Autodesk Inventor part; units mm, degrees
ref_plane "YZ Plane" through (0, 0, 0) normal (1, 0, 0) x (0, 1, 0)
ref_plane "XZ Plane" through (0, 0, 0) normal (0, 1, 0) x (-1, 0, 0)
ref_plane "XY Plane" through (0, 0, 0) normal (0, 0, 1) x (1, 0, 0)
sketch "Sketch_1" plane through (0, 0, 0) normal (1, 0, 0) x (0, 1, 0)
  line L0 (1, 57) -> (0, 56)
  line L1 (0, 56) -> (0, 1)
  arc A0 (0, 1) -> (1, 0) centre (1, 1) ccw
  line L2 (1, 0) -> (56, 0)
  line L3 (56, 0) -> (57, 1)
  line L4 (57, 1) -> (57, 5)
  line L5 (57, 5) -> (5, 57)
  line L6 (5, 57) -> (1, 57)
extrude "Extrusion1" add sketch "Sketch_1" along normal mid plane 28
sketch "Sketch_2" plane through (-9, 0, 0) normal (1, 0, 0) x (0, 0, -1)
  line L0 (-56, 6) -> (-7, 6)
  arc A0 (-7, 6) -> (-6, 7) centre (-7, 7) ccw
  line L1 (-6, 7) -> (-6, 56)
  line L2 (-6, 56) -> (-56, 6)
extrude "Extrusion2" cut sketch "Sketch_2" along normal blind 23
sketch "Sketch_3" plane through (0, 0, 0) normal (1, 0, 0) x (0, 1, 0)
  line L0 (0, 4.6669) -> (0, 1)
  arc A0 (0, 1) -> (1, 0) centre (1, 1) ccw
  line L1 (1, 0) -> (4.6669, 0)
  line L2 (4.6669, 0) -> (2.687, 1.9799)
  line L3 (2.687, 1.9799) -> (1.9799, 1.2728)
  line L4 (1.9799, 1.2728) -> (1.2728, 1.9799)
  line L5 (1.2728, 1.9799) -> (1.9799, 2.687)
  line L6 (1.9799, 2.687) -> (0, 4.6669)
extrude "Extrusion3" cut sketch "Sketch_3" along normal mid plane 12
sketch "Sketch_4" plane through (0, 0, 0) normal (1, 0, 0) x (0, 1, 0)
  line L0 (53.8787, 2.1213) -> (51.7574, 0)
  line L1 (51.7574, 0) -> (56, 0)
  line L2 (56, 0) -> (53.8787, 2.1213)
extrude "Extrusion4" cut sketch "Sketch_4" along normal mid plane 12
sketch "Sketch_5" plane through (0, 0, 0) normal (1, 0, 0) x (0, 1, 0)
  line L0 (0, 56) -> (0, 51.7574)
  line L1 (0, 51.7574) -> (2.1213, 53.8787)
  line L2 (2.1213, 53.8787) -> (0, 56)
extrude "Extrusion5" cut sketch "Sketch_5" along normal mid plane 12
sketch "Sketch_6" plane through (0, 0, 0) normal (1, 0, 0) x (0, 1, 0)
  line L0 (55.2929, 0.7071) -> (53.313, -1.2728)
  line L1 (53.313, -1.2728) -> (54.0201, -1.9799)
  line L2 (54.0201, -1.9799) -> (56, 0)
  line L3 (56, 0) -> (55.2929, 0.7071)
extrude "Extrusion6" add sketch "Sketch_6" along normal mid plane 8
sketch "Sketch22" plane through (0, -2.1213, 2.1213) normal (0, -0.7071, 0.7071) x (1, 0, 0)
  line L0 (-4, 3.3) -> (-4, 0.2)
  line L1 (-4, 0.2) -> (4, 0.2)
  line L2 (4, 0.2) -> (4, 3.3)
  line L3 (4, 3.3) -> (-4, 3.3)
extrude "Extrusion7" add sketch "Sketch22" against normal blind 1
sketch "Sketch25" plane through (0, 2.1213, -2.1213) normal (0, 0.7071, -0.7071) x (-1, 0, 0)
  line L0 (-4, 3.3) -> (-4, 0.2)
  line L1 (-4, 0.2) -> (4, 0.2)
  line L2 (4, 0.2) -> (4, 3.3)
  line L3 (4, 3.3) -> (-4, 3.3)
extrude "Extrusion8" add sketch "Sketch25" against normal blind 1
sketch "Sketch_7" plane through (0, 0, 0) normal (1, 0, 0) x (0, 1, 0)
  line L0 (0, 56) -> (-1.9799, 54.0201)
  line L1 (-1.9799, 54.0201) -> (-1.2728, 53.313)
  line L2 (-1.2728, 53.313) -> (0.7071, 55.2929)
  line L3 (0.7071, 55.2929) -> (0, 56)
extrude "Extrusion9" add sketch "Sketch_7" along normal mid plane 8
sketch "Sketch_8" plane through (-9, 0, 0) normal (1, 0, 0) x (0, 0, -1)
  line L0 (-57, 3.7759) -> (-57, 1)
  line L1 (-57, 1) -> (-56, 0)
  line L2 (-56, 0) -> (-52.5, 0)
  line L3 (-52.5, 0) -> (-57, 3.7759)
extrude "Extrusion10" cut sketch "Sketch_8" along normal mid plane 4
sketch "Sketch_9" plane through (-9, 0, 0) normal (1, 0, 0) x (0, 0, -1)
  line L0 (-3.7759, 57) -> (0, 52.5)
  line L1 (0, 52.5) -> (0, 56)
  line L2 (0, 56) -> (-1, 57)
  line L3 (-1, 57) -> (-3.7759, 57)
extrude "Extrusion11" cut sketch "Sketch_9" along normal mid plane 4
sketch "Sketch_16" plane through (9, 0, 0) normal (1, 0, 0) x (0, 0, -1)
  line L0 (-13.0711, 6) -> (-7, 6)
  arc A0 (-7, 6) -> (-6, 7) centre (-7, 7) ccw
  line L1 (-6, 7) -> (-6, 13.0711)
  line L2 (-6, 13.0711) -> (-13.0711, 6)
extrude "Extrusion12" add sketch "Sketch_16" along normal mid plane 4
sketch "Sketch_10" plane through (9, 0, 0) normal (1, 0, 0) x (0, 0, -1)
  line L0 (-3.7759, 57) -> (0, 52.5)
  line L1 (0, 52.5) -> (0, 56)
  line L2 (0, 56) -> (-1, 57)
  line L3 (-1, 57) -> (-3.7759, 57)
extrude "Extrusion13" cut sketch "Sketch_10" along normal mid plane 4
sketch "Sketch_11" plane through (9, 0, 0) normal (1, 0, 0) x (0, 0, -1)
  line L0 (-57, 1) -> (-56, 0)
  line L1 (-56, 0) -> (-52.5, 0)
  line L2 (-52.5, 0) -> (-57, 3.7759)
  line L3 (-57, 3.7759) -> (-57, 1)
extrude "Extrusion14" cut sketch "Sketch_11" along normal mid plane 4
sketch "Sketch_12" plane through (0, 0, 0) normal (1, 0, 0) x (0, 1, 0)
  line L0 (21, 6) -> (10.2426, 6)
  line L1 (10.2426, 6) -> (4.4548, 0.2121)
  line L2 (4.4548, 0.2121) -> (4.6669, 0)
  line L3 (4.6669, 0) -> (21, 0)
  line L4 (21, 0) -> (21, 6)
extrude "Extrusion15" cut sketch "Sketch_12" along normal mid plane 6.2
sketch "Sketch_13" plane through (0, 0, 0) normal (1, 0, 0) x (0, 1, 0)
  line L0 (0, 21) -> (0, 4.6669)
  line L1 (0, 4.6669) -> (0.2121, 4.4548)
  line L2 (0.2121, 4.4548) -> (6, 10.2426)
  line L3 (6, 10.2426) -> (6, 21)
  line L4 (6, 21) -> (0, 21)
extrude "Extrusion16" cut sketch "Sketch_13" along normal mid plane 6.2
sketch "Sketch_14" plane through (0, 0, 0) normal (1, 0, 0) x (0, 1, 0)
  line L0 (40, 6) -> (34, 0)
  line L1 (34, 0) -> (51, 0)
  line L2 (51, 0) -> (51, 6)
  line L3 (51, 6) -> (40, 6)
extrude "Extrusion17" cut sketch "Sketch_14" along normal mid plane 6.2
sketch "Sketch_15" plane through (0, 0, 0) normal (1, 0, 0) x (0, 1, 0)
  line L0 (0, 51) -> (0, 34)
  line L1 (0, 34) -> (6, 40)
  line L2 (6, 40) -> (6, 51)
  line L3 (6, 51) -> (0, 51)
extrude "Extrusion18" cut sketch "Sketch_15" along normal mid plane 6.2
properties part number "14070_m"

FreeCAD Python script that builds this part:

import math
import FreeCAD as App
import Part
import Sketcher

V = App.Vector
Q = App.Units.Quantity

doc = App.newDocument("Part")
body = doc.addObject("PartDesign::Body", "Body")

# Sketch on YZ plane
sketch1 = doc.addObject("Sketcher::SketchObject", "Sketch")
body.addObject(sketch1)
sketch1.AttachmentSupport = (doc.YZ_Plane, [""])
sketch1.MapMode = "FlatFace"
sketch1.addGeometry([
    Part.LineSegment(V(5, 57, 0), V(1, 57, 0)),  # 0
    Part.LineSegment(V(1, 57, 0), V(0, 56, 0)),  # 1
    Part.LineSegment(V(0, 56, 0), V(0, 1, 0)),  # 2
    Part.ArcOfCircle(Part.Circle(V(1, 1, 0), V(0, 0, 1), 1), math.radians(180), math.radians(270)),  # 3
    Part.LineSegment(V(1, 0, 0), V(56, 0, 0)),  # 4
    Part.LineSegment(V(56, 0, 0), V(57, 1, 0)),  # 5
    Part.LineSegment(V(57, 1, 0), V(57, 5, 0)),  # 6
    Part.LineSegment(V(57, 5, 0), V(5, 57, 0)),  # 7
], False)
sketch1.addConstraint([
    Sketcher.Constraint("Coincident", 0, 2, 1, 1),
    Sketcher.Constraint("Coincident", 1, 2, 2, 1),
    Sketcher.Constraint("Tangent", 2, 2, 3, 1),
    Sketcher.Constraint("Tangent", 3, 2, 4, 1),
    Sketcher.Constraint("Coincident", 4, 2, 5, 1),
    Sketcher.Constraint("Coincident", 5, 2, 6, 1),
    Sketcher.Constraint("Coincident", 6, 2, 7, 1),
    Sketcher.Constraint("Coincident", 7, 2, 0, 1),
    Sketcher.Constraint("Horizontal", 0),
    Sketcher.Constraint("Vertical", 2),
    Sketcher.Constraint("Horizontal", 4),
    Sketcher.Constraint("Vertical", 6),
    Sketcher.Constraint("PointOnObject", 1, 2, -2),
    Sketcher.Constraint("PointOnObject", 3, 2, -1),
    Sketcher.Constraint("Parallel", 1, 5),
    Sketcher.Constraint("Perpendicular", 5, 7),
    Sketcher.Constraint("Horizontal", 2, 2, 5, 2),
    Sketcher.Constraint("Vertical", 3, 3, 0, 2),
    Sketcher.Constraint("Equal", 4, 2),
    Sketcher.Constraint("Equal", 0, 6),
    Sketcher.Constraint("Radius", 3, Q("1 mm")),
    Sketcher.Constraint("DistanceX", 0, 2, 0, 1, Q("4 mm")),
    Sketcher.Constraint("DistanceX", 4, 1, 4, 2, Q("55 mm")),
])
pad1 = doc.addObject("PartDesign::Pad", "Pad")
body.addObject(pad1)
pad1.Profile = sketch1
pad1.Length = 28
pad1.Midplane = True

# Sketch on YZ plane
sketch2 = doc.addObject("Sketcher::SketchObject", "Sketch001")
body.addObject(sketch2)
sketch2.AttachmentSupport = (doc.YZ_Plane, [""])
sketch2.MapMode = "FlatFace"
sketch2.AttachmentOffset = App.Placement(V(0, 0, -9), App.Rotation())
sketch2.addGeometry([
    Part.LineSegment(V(56, 6, 0), V(6, 56, 0)),
    Part.LineSegment(V(6, 56, 0), V(6, 7, 0)),
    Part.ArcOfCircle(Part.Circle(V(7, 7, 0), V(0, 0, 1), 1), math.radians(180), math.radians(270)),
    Part.LineSegment(V(7, 6, 0), V(56, 6, 0)),
], False)
sketch2.addConstraint([
    Sketcher.Constraint("Coincident", 0, 2, 1, 1),
    Sketcher.Constraint("Tangent", 1, 2, 2, 1),
    Sketcher.Constraint("Tangent", 2, 2, 3, 1),
    Sketcher.Constraint("Coincident", 3, 2, 0, 1),
    Sketcher.Constraint("Vertical", 1),
    Sketcher.Constraint("Horizontal", 3),
    Sketcher.Constraint("Equal", 3, 1),
    Sketcher.Constraint("Radius", 2, Q("1 mm")),
    Sketcher.Constraint("DistanceX", 3, 1, 3, 2, Q("49 mm")),
    Sketcher.Constraint("DistanceX", -1, 1, 2, 3, Q("7 mm")),
    Sketcher.Constraint("DistanceY", -1, 1, 2, 3, Q("7 mm")),
])
pocket1 = doc.addObject("PartDesign::Pocket", "Pocket")
body.addObject(pocket1)
pocket1.Profile = sketch2
pocket1.Length = 23
pocket1.Reversed = True

# Sketch on YZ plane
sketch3 = doc.addObject("Sketcher::SketchObject", "Sketch002")
body.addObject(sketch3)
sketch3.AttachmentSupport = (doc.YZ_Plane, [""])
sketch3.MapMode = "FlatFace"
sketch3.addGeometry([
    Part.LineSegment(V(2, 2.7, 0), V(0, 4.7, 0)),  # 0
    Part.LineSegment(V(0, 4.7, 0), V(0, 1, 0)),  # 1
    Part.ArcOfCircle(Part.Circle(V(1, 1, 0), V(0, 0, 1), 1), math.radians(180), math.radians(270)),  # 2
    Part.LineSegment(V(1, 0, 0), V(4.7, 0, 0)),  # 3
    Part.LineSegment(V(4.7, 0, 0), V(2.7, 2, 0)),  # 4
    Part.LineSegment(V(2.7, 2, 0), V(2, 1.3, 0)),  # 5
    Part.LineSegment(V(2, 1.3, 0), V(1.3, 2, 0)),  # 6
    Part.LineSegment(V(1.3, 2, 0), V(2, 2.7, 0)),  # 7
], False)
sketch3.addConstraint([
    Sketcher.Constraint("Coincident", 0, 2, 1, 1),
    Sketcher.Constraint("Tangent", 1, 2, 2, 1),
    Sketcher.Constraint("Tangent", 2, 2, 3, 1),
    Sketcher.Constraint("Coincident", 3, 2, 4, 1),
    Sketcher.Constraint("Coincident", 4, 2, 5, 1),
    Sketcher.Constraint("Coincident", 5, 2, 6, 1),
    Sketcher.Constraint("Coincident", 6, 2, 7, 1),
    Sketcher.Constraint("Coincident", 7, 2, 0, 1),
    Sketcher.Constraint("Vertical", 1),
    Sketcher.Constraint("Horizontal", 3),
    Sketcher.Constraint("PointOnObject", 0, 2, -2),
    Sketcher.Constraint("PointOnObject", 2, 2, -1),
    Sketcher.Constraint("Parallel", 0, 4),
    Sketcher.Constraint("Perpendicular", 4, 5),
    Sketcher.Constraint("Perpendicular", 5, 6),
    Sketcher.Constraint("Perpendicular", 6, 7),
    Sketcher.Constraint("Horizontal", 4, 2, 6, 2),
    Sketcher.Constraint("Vertical", 5, 2, 7, 2),
    Sketcher.Constraint("Equal", 3, 1),
    Sketcher.Constraint("Equal", 0, 4),
    Sketcher.Constraint("Radius", 2, Q("1 mm")),
    Sketcher.Constraint("Distance", 5, Q("1 mm")),
    Sketcher.Constraint("Distance", 0, Q("2.8 mm")),
])
pocket2 = doc.addObject("PartDesign::Pocket", "Pocket001")
body.addObject(pocket2)
pocket2.Profile = sketch3
pocket2.Length = 12
pocket2.Midplane = True

# Sketch on YZ plane
sketch4 = doc.addObject("Sketcher::SketchObject", "Sketch003")
body.addObject(sketch4)
sketch4.AttachmentSupport = (doc.YZ_Plane, [""])
sketch4.MapMode = "FlatFace"
sketch4.addGeometry([
    Part.LineSegment(V(56, 0, 0), V(53.9, 2.1, 0)),
    Part.LineSegment(V(53.9, 2.1, 0), V(51.8, 0, 0)),
    Part.LineSegment(V(51.8, 0, 0), V(56, 0, 0)),
], False)
sketch4.addConstraint([
    Sketcher.Constraint("Coincident", 0, 2, 1, 1),
    Sketcher.Constraint("Coincident", 1, 2, 2, 1),
    Sketcher.Constraint("Coincident", 2, 2, 0, 1),
    Sketcher.Constraint("Horizontal", 2),
    Sketcher.Constraint("PointOnObject", 1, 2, -1),
    Sketcher.Constraint("Perpendicular", 0, 1),
    Sketcher.Constraint("Equal", 0, 1),
    Sketcher.Constraint("Distance", 0, Q("3 mm")),
    Sketcher.Constraint("DistanceX", -1, 1, 2, 2, Q("56 mm")),
])
pocket3 = doc.addObject("PartDesign::Pocket", "Pocket002")
body.addObject(pocket3)
pocket3.Profile = sketch4
pocket3.Length = 12
pocket3.Midplane = True

# Sketch on YZ plane
sketch5 = doc.addObject("Sketcher::SketchObject", "Sketch004")
body.addObject(sketch5)
sketch5.AttachmentSupport = (doc.YZ_Plane, [""])
sketch5.MapMode = "FlatFace"
sketch5.addGeometry([
    Part.LineSegment(V(2.1, 53.9, 0), V(0, 56, 0)),
    Part.LineSegment(V(0, 56, 0), V(0, 51.8, 0)),
    Part.LineSegment(V(0, 51.8, 0), V(2.1, 53.9, 0)),
], False)
sketch5.addConstraint([
    Sketcher.Constraint("Coincident", 0, 2, 1, 1),
    Sketcher.Constraint("Coincident", 1, 2, 2, 1),
    Sketcher.Constraint("Coincident", 2, 2, 0, 1),
    Sketcher.Constraint("Vertical", 1),
    Sketcher.Constraint("PointOnObject", 0, 2, -2),
    Sketcher.Constraint("Perpendicular", 0, 2),
    Sketcher.Constraint("Equal", 0, 2),
    Sketcher.Constraint("Distance", 0, Q("3 mm")),
    Sketcher.Constraint("DistanceY", -1, 1, 0, 2, Q("56 mm")),
])
pocket4 = doc.addObject("PartDesign::Pocket", "Pocket003")
body.addObject(pocket4)
pocket4.Profile = sketch5
pocket4.Length = 12
pocket4.Midplane = True

# Sketch on YZ plane
sketch6 = doc.addObject("Sketcher::SketchObject", "Sketch005")
body.addObject(sketch6)
sketch6.AttachmentSupport = (doc.YZ_Plane, [""])
sketch6.MapMode = "FlatFace"
sketch6.addGeometry([
    Part.LineSegment(V(56, 0, 0), V(55.3, 0.7, 0)),
    Part.LineSegment(V(55.3, 0.7, 0), V(53.3, -1.3, 0)),
    Part.LineSegment(V(53.3, -1.3, 0), V(54, -2, 0)),
    Part.LineSegment(V(54, -2, 0), V(56, 0, 0)),
], False)
sketch6.addConstraint([
    Sketcher.Constraint("Coincident", 0, 2, 1, 1),
    Sketcher.Constraint("Coincident", 1, 2, 2, 1),
    Sketcher.Constraint("Coincident", 2, 2, 3, 1),
    Sketcher.Constraint("Coincident", 3, 2, 0, 1),
    Sketcher.Constraint("PointOnObject", 3, 2, -1),
    Sketcher.Constraint("Perpendicular", 0, 1),
    Sketcher.Constraint("Perpendicular", 1, 2),
    Sketcher.Constraint("Perpendicular", 2, 3),
    Sketcher.Constraint("Angle", 0, Q("135 deg")),
    Sketcher.Constraint("Distance", 0, Q("1 mm")),
    Sketcher.Constraint("DistanceX", -1, 1, 3, 2, Q("56 mm")),
    Sketcher.Constraint("Distance", 1, Q("2.8 mm")),
])
pad2 = doc.addObject("PartDesign::Pad", "Pad001")
body.addObject(pad2)
pad2.Profile = sketch6
pad2.Length = 8
pad2.Midplane = True

# Sketch on an angled plane
sketch7 = doc.addObject("Sketcher::SketchObject", "Sketch006")
body.addObject(sketch7)
sketch7.Placement = App.Placement(V(0, -2.1213, 2.1213), App.Rotation(V(1, 0, 0), V(0, 0.707106781, 0.707106781), V(0, -0.707106781, 0.707106781), "ZXY"))
sketch7.addGeometry([
    Part.LineSegment(V(4, 3.3, 0), V(-4, 3.3, 0)),
    Part.LineSegment(V(-4, 3.3, 0), V(-4, 0.2, 0)),
    Part.LineSegment(V(-4, 0.2, 0), V(4, 0.2, 0)),
    Part.LineSegment(V(4, 0.2, 0), V(4, 3.3, 0)),
], False)
sketch7.addConstraint([
    Sketcher.Constraint("Coincident", 0, 2, 1, 1),
    Sketcher.Constraint("Coincident", 1, 2, 2, 1),
    Sketcher.Constraint("Coincident", 2, 2, 3, 1),
    Sketcher.Constraint("Coincident", 3, 2, 0, 1),
    Sketcher.Constraint("Horizontal", 0),
    Sketcher.Constraint("Vertical", 1),
    Sketcher.Constraint("Horizontal", 2),
    Sketcher.Constraint("Vertical", 3),
    Sketcher.Constraint("DistanceX", 0, 2, 0, 1, Q("8 mm")),
    Sketcher.Constraint("DistanceY", 1, 2, 1, 1, Q("3.1 mm")),
    Sketcher.Constraint("DistanceX", 0, 2, -1, 1, Q("4 mm")),
    Sketcher.Constraint("DistanceY", -1, 1, 0, 2, Q("3.3 mm")),
])
pad3 = doc.addObject("PartDesign::Pad", "Pad002")
body.addObject(pad3)
pad3.Profile = sketch7
pad3.Length = 1
pad3.Reversed = True

# Sketch on an angled plane
sketch8 = doc.addObject("Sketcher::SketchObject", "Sketch007")
body.addObject(sketch8)
sketch8.Placement = App.Placement(V(0, 2.1213, -2.1213), App.Rotation(V(-1, 0, 0), V(0, 0.707106781, 0.707106781), V(0, 0.707106781, -0.707106781), "ZXY"))
sketch8.addGeometry([
    Part.LineSegment(V(4, 3.3, 0), V(-4, 3.3, 0)),
    Part.LineSegment(V(-4, 3.3, 0), V(-4, 0.2, 0)),
    Part.LineSegment(V(-4, 0.2, 0), V(4, 0.2, 0)),
    Part.LineSegment(V(4, 0.2, 0), V(4, 3.3, 0)),
], False)
sketch8.addConstraint([
    Sketcher.Constraint("Coincident", 0, 2, 1, 1),
    Sketcher.Constraint("Coincident", 1, 2, 2, 1),
    Sketcher.Constraint("Coincident", 2, 2, 3, 1),
    Sketcher.Constraint("Coincident", 3, 2, 0, 1),
    Sketcher.Constraint("Horizontal", 0),
    Sketcher.Constraint("Vertical", 1),
    Sketcher.Constraint("Horizontal", 2),
    Sketcher.Constraint("Vertical", 3),
    Sketcher.Constraint("DistanceX", 0, 2, 0, 1, Q("8 mm")),
    Sketcher.Constraint("DistanceY", 1, 2, 1, 1, Q("3.1 mm")),
    Sketcher.Constraint("DistanceX", 0, 2, -1, 1, Q("4 mm")),
    Sketcher.Constraint("DistanceY", -1, 1, 0, 2, Q("3.3 mm")),
])
pad4 = doc.addObject("PartDesign::Pad", "Pad003")
body.addObject(pad4)
pad4.Profile = sketch8
pad4.Length = 1
pad4.Reversed = True

# Sketch on YZ plane
sketch9 = doc.addObject("Sketcher::SketchObject", "Sketch008")
body.addObject(sketch9)
sketch9.AttachmentSupport = (doc.YZ_Plane, [""])
sketch9.MapMode = "FlatFace"
sketch9.addGeometry([
    Part.LineSegment(V(0.7, 55.3, 0), V(0, 56, 0)),
    Part.LineSegment(V(0, 56, 0), V(-2, 54, 0)),
    Part.LineSegment(V(-2, 54, 0), V(-1.3, 53.3, 0)),
    Part.LineSegment(V(-1.3, 53.3, 0), V(0.7, 55.3, 0)),
], False)
sketch9.addConstraint([
    Sketcher.Constraint("Coincident", 0, 2, 1, 1),
    Sketcher.Constraint("Coincident", 1, 2, 2, 1),
    Sketcher.Constraint("Coincident", 2, 2, 3, 1),
    Sketcher.Constraint("Coincident", 3, 2, 0, 1),
    Sketcher.Constraint("PointOnObject", 0, 2, -2),
    Sketcher.Constraint("Perpendicular", 0, 1),
    Sketcher.Constraint("Perpendicular", 1, 2),
    Sketcher.Constraint("Perpendicular", 2, 3),
    Sketcher.Constraint("Angle", 0, Q("135 deg")),
    Sketcher.Constraint("Distance", 0, Q("1 mm")),
    Sketcher.Constraint("DistanceY", -1, 1, 0, 2, Q("56 mm")),
    Sketcher.Constraint("Distance", 1, Q("2.8 mm")),
])
pad5 = doc.addObject("PartDesign::Pad", "Pad004")
body.addObject(pad5)
pad5.Profile = sketch9
pad5.Length = 8
pad5.Midplane = True

# Sketch on YZ plane
sketch10 = doc.addObject("Sketcher::SketchObject", "Sketch009")
body.addObject(sketch10)
sketch10.AttachmentSupport = (doc.YZ_Plane, [""])
sketch10.MapMode = "FlatFace"
sketch10.AttachmentOffset = App.Placement(V(0, 0, -9), App.Rotation())
sketch10.addGeometry([
    Part.LineSegment(V(0, 52.5, 0), V(3.8, 57, 0)),
    Part.LineSegment(V(3.8, 57, 0), V(1, 57, 0)),
    Part.LineSegment(V(1, 57, 0), V(0, 56, 0)),
    Part.LineSegment(V(0, 56, 0), V(0, 52.5, 0)),
], False)
sketch10.addConstraint([
    Sketcher.Constraint("Coincident", 0, 2, 1, 1),
    Sketcher.Constraint("Coincident", 1, 2, 2, 1),
    Sketcher.Constraint("Coincident", 2, 2, 3, 1),
    Sketcher.Constraint("Coincident", 3, 2, 0, 1),
    Sketcher.Constraint("Horizontal", 1),
    Sketcher.Constraint("Vertical", 3),
    Sketcher.Constraint("PointOnObject", 2, 2, -2),
    Sketcher.Constraint("Angle", 0, Q("50.0004 deg")),
    Sketcher.Constraint("Angle", 2, Q("-135 deg")),
    Sketcher.Constraint("DistanceY", 3, 2, 3, 1, Q("3.5 mm")),
    Sketcher.Constraint("DistanceY", -1, 1, 0, 2, Q("57 mm")),
    Sketcher.Constraint("DistanceX", -1, 1, 1, 2, Q("1 mm")),
])
pocket5 = doc.addObject("PartDesign::Pocket", "Pocket004")
body.addObject(pocket5)
pocket5.Profile = sketch10
pocket5.Length = 4
pocket5.Midplane = True

# Sketch on YZ plane
sketch11 = doc.addObject("Sketcher::SketchObject", "Sketch010")
body.addObject(sketch11)
sketch11.AttachmentSupport = (doc.YZ_Plane, [""])
sketch11.MapMode = "FlatFace"
sketch11.AttachmentOffset = App.Placement(V(0, 0, -9), App.Rotation())
sketch11.addGeometry([
    Part.LineSegment(V(57, 1, 0), V(57, 3.8, 0)),
    Part.LineSegment(V(57, 3.8, 0), V(52.5, 0, 0)),
    Part.LineSegment(V(52.5, 0, 0), V(56, 0, 0)),
    Part.LineSegment(V(56, 0, 0), V(57, 1, 0)),
], False)
sketch11.addConstraint([
    Sketcher.Constraint("Coincident", 0, 2, 1, 1),
    Sketcher.Constraint("Coincident", 1, 2, 2, 1),
    Sketcher.Constraint("Coincident", 2, 2, 3, 1),
    Sketcher.Constraint("Coincident", 3, 2, 0, 1),
    Sketcher.Constraint("Vertical", 0),
    Sketcher.Constraint("Horizontal", 2),
    Sketcher.Constraint("PointOnObject", 1, 2, -1),
    Sketcher.Constraint("Angle", 1, Q("-140.0004 deg")),
    Sketcher.Constraint("Angle", 3, Q("45 deg")),
    Sketcher.Constraint("DistanceX", 2, 1, 2, 2, Q("3.5 mm")),
    Sketcher.Constraint("DistanceX", -1, 1, 0, 2, Q("57 mm")),
    Sketcher.Constraint("DistanceX", -1, 1, 2, 2, Q("56 mm")),
])
pocket6 = doc.addObject("PartDesign::Pocket", "Pocket005")
body.addObject(pocket6)
pocket6.Profile = sketch11
pocket6.Length = 4
pocket6.Midplane = True

# Sketch on YZ plane
sketch12 = doc.addObject("Sketcher::SketchObject", "Sketch011")
body.addObject(sketch12)
sketch12.AttachmentSupport = (doc.YZ_Plane, [""])
sketch12.MapMode = "FlatFace"
sketch12.AttachmentOffset = App.Placement(V(0, 0, 9), App.Rotation())
sketch12.addGeometry([
    Part.LineSegment(V(13.1, 6, 0), V(6, 13.1, 0)),
    Part.LineSegment(V(6, 13.1, 0), V(6, 7, 0)),
    Part.ArcOfCircle(Part.Circle(V(7, 7, 0), V(0, 0, 1), 1), math.radians(180), math.radians(270)),
    Part.LineSegment(V(7, 6, 0), V(13.1, 6, 0)),
], False)
sketch12.addConstraint([
    Sketcher.Constraint("Coincident", 0, 2, 1, 1),
    Sketcher.Constraint("Tangent", 1, 2, 2, 1),
    Sketcher.Constraint("Tangent", 2, 2, 3, 1),
    Sketcher.Constraint("Coincident", 3, 2, 0, 1),
    Sketcher.Constraint("Vertical", 1),
    Sketcher.Constraint("Horizontal", 3),
    Sketcher.Constraint("Equal", 3, 1),
    Sketcher.Constraint("Radius", 2, Q("1 mm")),
    Sketcher.Constraint("Distance", 0, Q("10 mm")),
    Sketcher.Constraint("DistanceX", -1, 1, 2, 3, Q("7 mm")),
    Sketcher.Constraint("DistanceY", -1, 1, 2, 3, Q("7 mm")),
])
pad6 = doc.addObject("PartDesign::Pad", "Pad005")
body.addObject(pad6)
pad6.Profile = sketch12
pad6.Length = 4
pad6.Midplane = True

# Sketch on YZ plane
sketch13 = doc.addObject("Sketcher::SketchObject", "Sketch012")
body.addObject(sketch13)
sketch13.AttachmentSupport = (doc.YZ_Plane, [""])
sketch13.MapMode = "FlatFace"
sketch13.AttachmentOffset = App.Placement(V(0, 0, 9), App.Rotation())
sketch13.addGeometry([
    Part.LineSegment(V(57, 1, 0), V(57, 3.8, 0)),
    Part.LineSegment(V(57, 3.8, 0), V(52.5, 0, 0)),
    Part.LineSegment(V(52.5, 0, 0), V(56, 0, 0)),
    Part.LineSegment(V(56, 0, 0), V(57, 1, 0)),
], False)
sketch13.addConstraint([
    Sketcher.Constraint("Coincident", 0, 2, 1, 1),
    Sketcher.Constraint("Coincident", 1, 2, 2, 1),
    Sketcher.Constraint("Coincident", 2, 2, 3, 1),
    Sketcher.Constraint("Coincident", 3, 2, 0, 1),
    Sketcher.Constraint("Vertical", 0),
    Sketcher.Constraint("Horizontal", 2),
    Sketcher.Constraint("PointOnObject", 1, 2, -1),
    Sketcher.Constraint("Angle", 1, Q("-140.0004 deg")),
    Sketcher.Constraint("Angle", 3, Q("45 deg")),
    Sketcher.Constraint("DistanceX", 2, 1, 2, 2, Q("3.5 mm")),
    Sketcher.Constraint("DistanceX", -1, 1, 0, 2, Q("57 mm")),
    Sketcher.Constraint("DistanceX", -1, 1, 2, 2, Q("56 mm")),
])
pocket7 = doc.addObject("PartDesign::Pocket", "Pocket006")
body.addObject(pocket7)
pocket7.Profile = sketch13
pocket7.Length = 4
pocket7.Midplane = True

# Sketch on YZ plane
sketch14 = doc.addObject("Sketcher::SketchObject", "Sketch013")
body.addObject(sketch14)
sketch14.AttachmentSupport = (doc.YZ_Plane, [""])
sketch14.MapMode = "FlatFace"
sketch14.AttachmentOffset = App.Placement(V(0, 0, 9), App.Rotation())
sketch14.addGeometry([
    Part.LineSegment(V(3.8, 57, 0), V(1, 57, 0)),
    Part.LineSegment(V(1, 57, 0), V(0, 56, 0)),
    Part.LineSegment(V(0, 56, 0), V(0, 52.5, 0)),
    Part.LineSegment(V(0, 52.5, 0), V(3.8, 57, 0)),
], False)
sketch14.addConstraint([
    Sketcher.Constraint("Coincident", 0, 2, 1, 1),
    Sketcher.Constraint("Coincident", 1, 2, 2, 1),
    Sketcher.Constraint("Coincident", 2, 2, 3, 1),
    Sketcher.Constraint("Coincident", 3, 2, 0, 1),
    Sketcher.Constraint("Horizontal", 0),
    Sketcher.Constraint("Vertical", 2),
    Sketcher.Constraint("PointOnObject", 1, 2, -2),
    Sketcher.Constraint("Angle", 1, Q("-135 deg")),
    Sketcher.Constraint("Angle", 3, Q("50.0004 deg")),
    Sketcher.Constraint("DistanceY", 2, 2, 2, 1, Q("3.5 mm")),
    Sketcher.Constraint("DistanceX", -1, 1, 0, 2, Q("1 mm")),
    Sketcher.Constraint("DistanceY", -1, 1, 0, 2, Q("57 mm")),
])
pocket8 = doc.addObject("PartDesign::Pocket", "Pocket007")
body.addObject(pocket8)
pocket8.Profile = sketch14
pocket8.Length = 4
pocket8.Midplane = True

# Sketch on YZ plane
sketch15 = doc.addObject("Sketcher::SketchObject", "Sketch014")
body.addObject(sketch15)
sketch15.AttachmentSupport = (doc.YZ_Plane, [""])
sketch15.MapMode = "FlatFace"
sketch15.addGeometry([
    Part.LineSegment(V(21, 0, 0), V(21, 6, 0)),  # 0
    Part.LineSegment(V(21, 6, 0), V(10.24, 6, 0)),  # 1
    Part.LineSegment(V(10.24, 6, 0), V(4.45, 0.21, 0)),  # 2
    Part.LineSegment(V(4.45, 0.21, 0), V(4.67, 0, 0)),  # 3
    Part.LineSegment(V(4.67, 0, 0), V(21, 0, 0)),  # 4
], False)
sketch15.addConstraint([
    Sketcher.Constraint("Coincident", 0, 2, 1, 1),
    Sketcher.Constraint("Coincident", 1, 2, 2, 1),
    Sketcher.Constraint("Coincident", 2, 2, 3, 1),
    Sketcher.Constraint("Coincident", 3, 2, 4, 1),
    Sketcher.Constraint("Coincident", 4, 2, 0, 1),
    Sketcher.Constraint("Vertical", 0),
    Sketcher.Constraint("Horizontal", 1),
    Sketcher.Constraint("Horizontal", 4),
    Sketcher.Constraint("PointOnObject", 3, 2, -1),
    Sketcher.Constraint("Perpendicular", 2, 3),
    Sketcher.Constraint("DistanceY", 0, 1, 0, 2, Q("6 mm")),
    Sketcher.Constraint("Angle", 2, Q("-134.9995 deg")),
    Sketcher.Constraint("DistanceX", -1, 1, 0, 2, Q("21 mm")),
    Sketcher.Constraint("Distance", 3, Q("0.3 mm")),
    Sketcher.Constraint("DistanceX", 4, 1, 4, 2, Q("16.333 mm")),
])
pocket9 = doc.addObject("PartDesign::Pocket", "Pocket008")
body.addObject(pocket9)
pocket9.Profile = sketch15
pocket9.Length = 6.2
pocket9.Midplane = True

# Sketch on YZ plane
sketch16 = doc.addObject("Sketcher::SketchObject", "Sketch015")
body.addObject(sketch16)
sketch16.AttachmentSupport = (doc.YZ_Plane, [""])
sketch16.MapMode = "FlatFace"
sketch16.addGeometry([
    Part.LineSegment(V(6, 21, 0), V(0, 21, 0)),  # 0
    Part.LineSegment(V(0, 21, 0), V(0, 4.67, 0)),  # 1
    Part.LineSegment(V(0, 4.67, 0), V(0.21, 4.45, 0)),  # 2
    Part.LineSegment(V(0.21, 4.45, 0), V(6, 10.24, 0)),  # 3
    Part.LineSegment(V(6, 10.24, 0), V(6, 21, 0)),  # 4
], False)
sketch16.addConstraint([
    Sketcher.Constraint("Coincident", 0, 2, 1, 1),
    Sketcher.Constraint("Coincident", 1, 2, 2, 1),
    Sketcher.Constraint("Coincident", 2, 2, 3, 1),
    Sketcher.Constraint("Coincident", 3, 2, 4, 1),
    Sketcher.Constraint("Coincident", 4, 2, 0, 1),
    Sketcher.Constraint("Horizontal", 0),
    Sketcher.Constraint("Vertical", 1),
    Sketcher.Constraint("Vertical", 4),
    Sketcher.Constraint("PointOnObject", 0, 2, -2),
    Sketcher.Constraint("Perpendicular", 2, 3),
    Sketcher.Constraint("DistanceX", 0, 2, 0, 1, Q("6 mm")),
    Sketcher.Constraint("Angle", 2, Q("-45 deg")),
    Sketcher.Constraint("DistanceY", -1, 1, 0, 2, Q("21 mm")),
    Sketcher.Constraint("Distance", 2, Q("0.3 mm")),
    Sketcher.Constraint("DistanceY", 1, 2, 1, 1, Q("16.333 mm")),
])
pocket10 = doc.addObject("PartDesign::Pocket", "Pocket009")
body.addObject(pocket10)
pocket10.Profile = sketch16
pocket10.Length = 6.2
pocket10.Midplane = True

# Sketch on YZ plane
sketch17 = doc.addObject("Sketcher::SketchObject", "Sketch016")
body.addObject(sketch17)
sketch17.AttachmentSupport = (doc.YZ_Plane, [""])
sketch17.MapMode = "FlatFace"
sketch17.addGeometry([
    Part.LineSegment(V(51, 6, 0), V(40, 6, 0)),
    Part.LineSegment(V(40, 6, 0), V(34, 0, 0)),
    Part.LineSegment(V(34, 0, 0), V(51, 0, 0)),
    Part.LineSegment(V(51, 0, 0), V(51, 6, 0)),
], False)
sketch17.addConstraint([
    Sketcher.Constraint("Coincident", 0, 2, 1, 1),
    Sketcher.Constraint("Coincident", 1, 2, 2, 1),
    Sketcher.Constraint("Coincident", 2, 2, 3, 1),
    Sketcher.Constraint("Coincident", 3, 2, 0, 1),
    Sketcher.Constraint("Horizontal", 0),
    Sketcher.Constraint("Horizontal", 2),
    Sketcher.Constraint("Vertical", 3),
    Sketcher.Constraint("PointOnObject", 1, 2, -1),
    Sketcher.Constraint("DistanceX", 0, 2, 0, 1, Q("11 mm")),
    Sketcher.Constraint("DistanceX", 2, 1, 2, 2, Q("17 mm")),
    Sketcher.Constraint("DistanceY", 3, 1, 3, 2, Q("6 mm")),
    Sketcher.Constraint("DistanceX", -1, 1, 0, 2, Q("40 mm")),
])
pocket11 = doc.addObject("PartDesign::Pocket", "Pocket010")
body.addObject(pocket11)
pocket11.Profile = sketch17
pocket11.Length = 6.2
pocket11.Midplane = True

# Sketch on YZ plane
sketch18 = doc.addObject("Sketcher::SketchObject", "Sketch017")
body.addObject(sketch18)
sketch18.AttachmentSupport = (doc.YZ_Plane, [""])
sketch18.MapMode = "FlatFace"
sketch18.addGeometry([
    Part.LineSegment(V(6, 51, 0), V(0, 51, 0)),
    Part.LineSegment(V(0, 51, 0), V(0, 34, 0)),
    Part.LineSegment(V(0, 34, 0), V(6, 40, 0)),
    Part.LineSegment(V(6, 40, 0), V(6, 51, 0)),
], False)
sketch18.addConstraint([
    Sketcher.Constraint("Coincident", 0, 2, 1, 1),
    Sketcher.Constraint("Coincident", 1, 2, 2, 1),
    Sketcher.Constraint("Coincident", 2, 2, 3, 1),
    Sketcher.Constraint("Coincident", 3, 2, 0, 1),
    Sketcher.Constraint("Horizontal", 0),
    Sketcher.Constraint("Vertical", 1),
    Sketcher.Constraint("Vertical", 3),
    Sketcher.Constraint("PointOnObject", 0, 2, -2),
    Sketcher.Constraint("DistanceX", 0, 2, 0, 1, Q("6 mm")),
    Sketcher.Constraint("DistanceY", 1, 2, 1, 1, Q("17 mm")),
    Sketcher.Constraint("DistanceY", 3, 1, 3, 2, Q("11 mm")),
    Sketcher.Constraint("DistanceY", -1, 1, 0, 2, Q("51 mm")),
])
pocket12 = doc.addObject("PartDesign::Pocket", "Pocket011")
body.addObject(pocket12)
pocket12.Profile = sketch18
pocket12.Length = 6.2
pocket12.Midplane = True

doc.recompute()
